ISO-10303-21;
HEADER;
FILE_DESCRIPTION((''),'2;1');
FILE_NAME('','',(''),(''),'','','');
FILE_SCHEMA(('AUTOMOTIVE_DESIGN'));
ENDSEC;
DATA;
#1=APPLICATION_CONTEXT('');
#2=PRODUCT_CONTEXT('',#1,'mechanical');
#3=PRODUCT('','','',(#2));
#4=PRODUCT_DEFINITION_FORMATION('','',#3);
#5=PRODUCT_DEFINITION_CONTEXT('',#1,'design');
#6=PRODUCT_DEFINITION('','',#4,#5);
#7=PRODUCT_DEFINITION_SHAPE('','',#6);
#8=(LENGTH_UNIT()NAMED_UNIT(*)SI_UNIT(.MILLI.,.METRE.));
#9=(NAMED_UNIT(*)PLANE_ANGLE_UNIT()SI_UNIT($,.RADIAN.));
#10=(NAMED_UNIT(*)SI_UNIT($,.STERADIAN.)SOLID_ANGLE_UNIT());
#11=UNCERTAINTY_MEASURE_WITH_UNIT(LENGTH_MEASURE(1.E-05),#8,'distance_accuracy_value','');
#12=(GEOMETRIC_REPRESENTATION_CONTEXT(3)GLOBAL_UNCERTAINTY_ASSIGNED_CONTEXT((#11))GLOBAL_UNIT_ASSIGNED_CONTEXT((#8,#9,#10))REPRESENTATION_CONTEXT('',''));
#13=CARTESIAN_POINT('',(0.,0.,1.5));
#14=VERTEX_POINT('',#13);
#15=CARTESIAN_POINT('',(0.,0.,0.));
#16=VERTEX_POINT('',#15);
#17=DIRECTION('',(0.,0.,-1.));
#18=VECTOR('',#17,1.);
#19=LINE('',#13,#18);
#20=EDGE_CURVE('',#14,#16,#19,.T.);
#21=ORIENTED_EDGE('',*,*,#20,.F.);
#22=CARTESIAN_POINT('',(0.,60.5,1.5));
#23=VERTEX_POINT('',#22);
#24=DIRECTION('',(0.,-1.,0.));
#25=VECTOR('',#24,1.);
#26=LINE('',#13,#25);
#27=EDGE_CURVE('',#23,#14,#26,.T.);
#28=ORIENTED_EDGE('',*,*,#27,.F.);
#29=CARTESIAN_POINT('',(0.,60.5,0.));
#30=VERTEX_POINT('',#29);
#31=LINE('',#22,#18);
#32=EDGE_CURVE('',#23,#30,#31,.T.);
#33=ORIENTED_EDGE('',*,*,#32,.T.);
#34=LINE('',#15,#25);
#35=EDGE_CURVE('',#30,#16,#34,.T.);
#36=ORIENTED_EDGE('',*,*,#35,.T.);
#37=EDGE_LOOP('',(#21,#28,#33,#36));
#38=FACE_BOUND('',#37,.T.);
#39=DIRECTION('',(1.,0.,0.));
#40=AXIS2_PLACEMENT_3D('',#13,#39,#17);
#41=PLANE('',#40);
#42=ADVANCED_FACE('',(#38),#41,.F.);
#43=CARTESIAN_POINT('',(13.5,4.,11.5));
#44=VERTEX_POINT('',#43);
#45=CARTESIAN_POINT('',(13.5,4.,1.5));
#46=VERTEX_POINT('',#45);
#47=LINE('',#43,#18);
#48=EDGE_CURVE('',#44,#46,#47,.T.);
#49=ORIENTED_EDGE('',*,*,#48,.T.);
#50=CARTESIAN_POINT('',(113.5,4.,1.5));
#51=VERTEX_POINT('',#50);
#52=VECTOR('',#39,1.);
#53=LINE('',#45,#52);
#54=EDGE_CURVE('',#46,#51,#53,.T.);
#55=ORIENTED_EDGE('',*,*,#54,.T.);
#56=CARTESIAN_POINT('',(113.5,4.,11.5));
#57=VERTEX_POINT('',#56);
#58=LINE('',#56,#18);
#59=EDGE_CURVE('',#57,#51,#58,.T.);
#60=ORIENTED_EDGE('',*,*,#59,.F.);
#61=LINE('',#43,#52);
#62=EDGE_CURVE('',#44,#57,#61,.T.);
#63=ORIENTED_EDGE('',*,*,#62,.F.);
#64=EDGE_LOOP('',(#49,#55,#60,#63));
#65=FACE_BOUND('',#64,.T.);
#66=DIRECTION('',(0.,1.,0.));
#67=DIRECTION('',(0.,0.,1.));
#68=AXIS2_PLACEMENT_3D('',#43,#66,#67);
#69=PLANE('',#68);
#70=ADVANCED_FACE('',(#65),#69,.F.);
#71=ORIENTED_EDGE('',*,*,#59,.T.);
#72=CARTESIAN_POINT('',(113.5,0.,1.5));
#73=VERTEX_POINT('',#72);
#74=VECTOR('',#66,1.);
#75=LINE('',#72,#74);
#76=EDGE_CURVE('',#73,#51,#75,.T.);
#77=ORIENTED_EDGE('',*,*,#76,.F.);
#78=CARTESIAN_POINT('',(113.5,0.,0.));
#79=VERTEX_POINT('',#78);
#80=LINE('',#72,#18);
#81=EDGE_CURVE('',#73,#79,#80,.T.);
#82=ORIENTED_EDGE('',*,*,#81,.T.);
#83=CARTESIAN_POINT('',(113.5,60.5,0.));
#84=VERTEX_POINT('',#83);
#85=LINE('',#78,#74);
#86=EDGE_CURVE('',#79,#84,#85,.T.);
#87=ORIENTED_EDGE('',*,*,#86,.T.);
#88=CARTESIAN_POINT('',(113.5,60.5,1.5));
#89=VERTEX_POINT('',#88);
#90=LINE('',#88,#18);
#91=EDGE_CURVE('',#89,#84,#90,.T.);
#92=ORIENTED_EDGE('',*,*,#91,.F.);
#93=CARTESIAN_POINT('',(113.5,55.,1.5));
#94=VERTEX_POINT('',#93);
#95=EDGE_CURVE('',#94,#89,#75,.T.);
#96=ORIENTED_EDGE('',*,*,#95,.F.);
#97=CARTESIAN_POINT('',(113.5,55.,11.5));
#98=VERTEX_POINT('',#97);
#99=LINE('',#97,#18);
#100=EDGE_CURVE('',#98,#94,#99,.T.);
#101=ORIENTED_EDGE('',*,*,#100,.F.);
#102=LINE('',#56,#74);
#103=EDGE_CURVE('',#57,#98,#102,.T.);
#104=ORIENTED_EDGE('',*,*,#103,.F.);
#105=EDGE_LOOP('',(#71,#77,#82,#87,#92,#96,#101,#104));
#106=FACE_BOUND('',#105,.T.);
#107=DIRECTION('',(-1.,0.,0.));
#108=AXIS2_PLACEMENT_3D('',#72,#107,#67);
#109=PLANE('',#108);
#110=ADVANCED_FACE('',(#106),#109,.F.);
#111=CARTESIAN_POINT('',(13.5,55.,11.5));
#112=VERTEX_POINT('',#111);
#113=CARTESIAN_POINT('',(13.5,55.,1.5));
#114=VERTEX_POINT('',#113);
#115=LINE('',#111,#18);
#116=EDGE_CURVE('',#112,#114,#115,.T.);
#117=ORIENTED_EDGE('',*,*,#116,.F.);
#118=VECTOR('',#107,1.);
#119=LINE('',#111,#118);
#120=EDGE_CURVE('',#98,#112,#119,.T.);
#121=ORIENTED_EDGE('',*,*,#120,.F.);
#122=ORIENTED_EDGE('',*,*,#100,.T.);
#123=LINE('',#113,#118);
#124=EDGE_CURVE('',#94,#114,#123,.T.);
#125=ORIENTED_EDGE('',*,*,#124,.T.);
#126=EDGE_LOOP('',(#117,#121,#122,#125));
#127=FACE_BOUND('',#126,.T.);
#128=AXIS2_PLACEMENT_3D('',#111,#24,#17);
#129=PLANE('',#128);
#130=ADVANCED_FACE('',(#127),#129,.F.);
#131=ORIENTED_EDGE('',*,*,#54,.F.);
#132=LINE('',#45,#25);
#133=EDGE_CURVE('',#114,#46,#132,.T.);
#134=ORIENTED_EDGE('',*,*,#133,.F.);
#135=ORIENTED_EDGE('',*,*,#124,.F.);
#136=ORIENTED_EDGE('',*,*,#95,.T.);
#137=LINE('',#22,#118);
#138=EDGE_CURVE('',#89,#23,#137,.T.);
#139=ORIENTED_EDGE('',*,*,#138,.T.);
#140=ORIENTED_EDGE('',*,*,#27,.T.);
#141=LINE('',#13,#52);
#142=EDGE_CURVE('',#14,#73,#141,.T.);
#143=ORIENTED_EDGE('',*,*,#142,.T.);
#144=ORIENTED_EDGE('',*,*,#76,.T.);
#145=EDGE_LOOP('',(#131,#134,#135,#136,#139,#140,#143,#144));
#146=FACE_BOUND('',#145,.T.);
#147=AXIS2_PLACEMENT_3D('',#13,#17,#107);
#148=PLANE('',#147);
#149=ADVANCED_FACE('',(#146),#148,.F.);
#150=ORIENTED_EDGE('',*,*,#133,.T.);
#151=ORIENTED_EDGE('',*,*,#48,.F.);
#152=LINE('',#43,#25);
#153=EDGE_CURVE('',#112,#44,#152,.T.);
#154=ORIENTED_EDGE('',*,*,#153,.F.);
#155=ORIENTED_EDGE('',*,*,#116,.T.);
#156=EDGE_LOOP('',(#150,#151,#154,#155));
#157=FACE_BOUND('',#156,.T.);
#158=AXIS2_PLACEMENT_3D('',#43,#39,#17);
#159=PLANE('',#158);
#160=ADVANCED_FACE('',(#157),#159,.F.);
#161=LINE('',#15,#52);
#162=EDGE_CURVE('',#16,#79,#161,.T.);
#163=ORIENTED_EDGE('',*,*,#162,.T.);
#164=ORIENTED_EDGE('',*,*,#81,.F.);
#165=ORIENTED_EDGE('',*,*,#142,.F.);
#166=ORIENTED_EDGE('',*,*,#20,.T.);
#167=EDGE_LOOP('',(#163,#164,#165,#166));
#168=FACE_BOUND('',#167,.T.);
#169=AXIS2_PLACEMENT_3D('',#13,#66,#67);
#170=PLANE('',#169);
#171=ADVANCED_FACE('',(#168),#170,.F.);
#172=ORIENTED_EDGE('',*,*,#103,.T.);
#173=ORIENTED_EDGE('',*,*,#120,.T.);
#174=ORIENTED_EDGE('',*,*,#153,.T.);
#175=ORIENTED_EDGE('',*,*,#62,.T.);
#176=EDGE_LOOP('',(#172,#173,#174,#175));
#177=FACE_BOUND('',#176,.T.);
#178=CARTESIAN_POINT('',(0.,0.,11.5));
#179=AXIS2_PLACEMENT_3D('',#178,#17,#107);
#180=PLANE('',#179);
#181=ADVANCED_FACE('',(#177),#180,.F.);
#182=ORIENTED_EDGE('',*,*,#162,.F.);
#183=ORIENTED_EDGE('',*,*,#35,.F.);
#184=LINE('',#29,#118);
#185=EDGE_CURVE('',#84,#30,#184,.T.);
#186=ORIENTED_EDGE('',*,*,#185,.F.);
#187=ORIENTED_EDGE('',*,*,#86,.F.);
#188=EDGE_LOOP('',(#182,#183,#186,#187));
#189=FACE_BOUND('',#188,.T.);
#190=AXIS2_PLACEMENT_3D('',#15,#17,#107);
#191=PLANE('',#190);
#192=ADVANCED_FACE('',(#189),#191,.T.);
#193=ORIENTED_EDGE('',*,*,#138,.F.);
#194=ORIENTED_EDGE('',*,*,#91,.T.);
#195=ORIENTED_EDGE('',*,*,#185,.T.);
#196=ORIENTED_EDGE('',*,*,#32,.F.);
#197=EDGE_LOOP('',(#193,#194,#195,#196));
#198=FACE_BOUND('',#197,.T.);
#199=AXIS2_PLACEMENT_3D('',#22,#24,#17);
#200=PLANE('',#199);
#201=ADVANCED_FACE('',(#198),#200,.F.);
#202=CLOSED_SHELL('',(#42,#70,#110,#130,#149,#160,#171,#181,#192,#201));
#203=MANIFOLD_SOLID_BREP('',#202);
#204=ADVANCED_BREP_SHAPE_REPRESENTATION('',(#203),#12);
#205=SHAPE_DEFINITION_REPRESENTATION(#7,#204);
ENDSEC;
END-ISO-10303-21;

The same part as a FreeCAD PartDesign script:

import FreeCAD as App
import Part
import Sketcher

V = App.Vector
Q = App.Units.Quantity

doc = App.newDocument("Part")
params = doc.addObject("Spreadsheet::Sheet", "Params")
for row, (alias, value) in enumerate([
    ("sketch1_width", "113.5 mm"),
    ("sketch1_height", "60.5 mm"),
    ("pad1_length", "1.5 mm"),
    ("sketch2_width", "100 mm"),
    ("sketch2_height", "51 mm"),
    ("pad2_length", "10 mm"),
], start=1):
    params.set(f"A{row}", alias)
    params.set(f"B{row}", "=" + value)
    params.setAlias(f"B{row}", alias)

body = doc.addObject("PartDesign::Body", "Body")

sketch1 = body.newObject("Sketcher::SketchObject", "Sketch")
sketch1.AttachmentSupport = (doc.getObject("XY_Plane"), [""])
sketch1.MapMode = "FlatFace"
sketch1.addGeometry([
    Part.LineSegment(V(0, 60, 0), V(0, 0, 0)),
    Part.LineSegment(V(0, 0, 0), V(114, 0, 0)),
    Part.LineSegment(V(114, 0, 0), V(114, 60, 0)),
    Part.LineSegment(V(114, 60, 0), V(0, 60, 0)),
], False)
sketch1.addConstraint([
    Sketcher.Constraint("Coincident", 0, 2, 1, 1),
    Sketcher.Constraint("Coincident", 1, 2, 2, 1),
    Sketcher.Constraint("Coincident", 2, 2, 3, 1),
    Sketcher.Constraint("Coincident", 3, 2, 0, 1),
    Sketcher.Constraint("Vertical", 0),
    Sketcher.Constraint("Horizontal", 1),
    Sketcher.Constraint("Vertical", 2),
    Sketcher.Constraint("Horizontal", 3),
    Sketcher.Constraint("Coincident", 0, 2, -1, 1),
    Sketcher.Constraint("DistanceX", 1, 1, 1, 2, Q("113.5 mm")),
    Sketcher.Constraint("DistanceY", 0, 2, 0, 1, Q("60.5 mm")),
])
sketch1.setExpression("Constraints[9]", "Params.sketch1_width")
sketch1.setExpression("Constraints[10]", "Params.sketch1_height")
pad1 = body.newObject("PartDesign::Pad", "Pad")
pad1.Profile = sketch1
pad1.setExpression("Length", "Params.pad1_length")

sketch2 = body.newObject("Sketcher::SketchObject", "Sketch001")
sketch2.AttachmentSupport = (doc.getObject("XY_Plane"), [""])
sketch2.MapMode = "FlatFace"
sketch2.AttachmentOffset = App.Placement(V(0, 0, 1.5), App.Rotation())
sketch2.addGeometry([
    Part.LineSegment(V(14, 55, 0), V(14, 4, 0)),
    Part.LineSegment(V(14, 4, 0), V(114, 4, 0)),
    Part.LineSegment(V(114, 4, 0), V(114, 55, 0)),
    Part.LineSegment(V(114, 55, 0), V(14, 55, 0)),
], False)
sketch2.addConstraint([
    Sketcher.Constraint("Coincident", 0, 2, 1, 1),
    Sketcher.Constraint("Coincident", 1, 2, 2, 1),
    Sketcher.Constraint("Coincident", 2, 2, 3, 1),
    Sketcher.Constraint("Coincident", 3, 2, 0, 1),
    Sketcher.Constraint("Vertical", 0),
    Sketcher.Constraint("Horizontal", 1),
    Sketcher.Constraint("Vertical", 2),
    Sketcher.Constraint("Horizontal", 3),
    Sketcher.Constraint("DistanceX", 1, 1, 1, 2, Q("100 mm")),
    Sketcher.Constraint("DistanceY", 0, 2, 0, 1, Q("51 mm")),
    Sketcher.Constraint("DistanceY", -1, 1, 0, 2, Q("4 mm")),
    Sketcher.Constraint("DistanceX", -1, 1, 0, 2, Q("13.5 mm")),
])
sketch2.setExpression("Constraints[8]", "Params.sketch2_width")
sketch2.setExpression("Constraints[9]", "Params.sketch2_height")
pad2 = body.newObject("PartDesign::Pad", "Pad001")
pad2.Profile = sketch2
pad2.setExpression("Length", "Params.pad2_length")

doc.recompute()
